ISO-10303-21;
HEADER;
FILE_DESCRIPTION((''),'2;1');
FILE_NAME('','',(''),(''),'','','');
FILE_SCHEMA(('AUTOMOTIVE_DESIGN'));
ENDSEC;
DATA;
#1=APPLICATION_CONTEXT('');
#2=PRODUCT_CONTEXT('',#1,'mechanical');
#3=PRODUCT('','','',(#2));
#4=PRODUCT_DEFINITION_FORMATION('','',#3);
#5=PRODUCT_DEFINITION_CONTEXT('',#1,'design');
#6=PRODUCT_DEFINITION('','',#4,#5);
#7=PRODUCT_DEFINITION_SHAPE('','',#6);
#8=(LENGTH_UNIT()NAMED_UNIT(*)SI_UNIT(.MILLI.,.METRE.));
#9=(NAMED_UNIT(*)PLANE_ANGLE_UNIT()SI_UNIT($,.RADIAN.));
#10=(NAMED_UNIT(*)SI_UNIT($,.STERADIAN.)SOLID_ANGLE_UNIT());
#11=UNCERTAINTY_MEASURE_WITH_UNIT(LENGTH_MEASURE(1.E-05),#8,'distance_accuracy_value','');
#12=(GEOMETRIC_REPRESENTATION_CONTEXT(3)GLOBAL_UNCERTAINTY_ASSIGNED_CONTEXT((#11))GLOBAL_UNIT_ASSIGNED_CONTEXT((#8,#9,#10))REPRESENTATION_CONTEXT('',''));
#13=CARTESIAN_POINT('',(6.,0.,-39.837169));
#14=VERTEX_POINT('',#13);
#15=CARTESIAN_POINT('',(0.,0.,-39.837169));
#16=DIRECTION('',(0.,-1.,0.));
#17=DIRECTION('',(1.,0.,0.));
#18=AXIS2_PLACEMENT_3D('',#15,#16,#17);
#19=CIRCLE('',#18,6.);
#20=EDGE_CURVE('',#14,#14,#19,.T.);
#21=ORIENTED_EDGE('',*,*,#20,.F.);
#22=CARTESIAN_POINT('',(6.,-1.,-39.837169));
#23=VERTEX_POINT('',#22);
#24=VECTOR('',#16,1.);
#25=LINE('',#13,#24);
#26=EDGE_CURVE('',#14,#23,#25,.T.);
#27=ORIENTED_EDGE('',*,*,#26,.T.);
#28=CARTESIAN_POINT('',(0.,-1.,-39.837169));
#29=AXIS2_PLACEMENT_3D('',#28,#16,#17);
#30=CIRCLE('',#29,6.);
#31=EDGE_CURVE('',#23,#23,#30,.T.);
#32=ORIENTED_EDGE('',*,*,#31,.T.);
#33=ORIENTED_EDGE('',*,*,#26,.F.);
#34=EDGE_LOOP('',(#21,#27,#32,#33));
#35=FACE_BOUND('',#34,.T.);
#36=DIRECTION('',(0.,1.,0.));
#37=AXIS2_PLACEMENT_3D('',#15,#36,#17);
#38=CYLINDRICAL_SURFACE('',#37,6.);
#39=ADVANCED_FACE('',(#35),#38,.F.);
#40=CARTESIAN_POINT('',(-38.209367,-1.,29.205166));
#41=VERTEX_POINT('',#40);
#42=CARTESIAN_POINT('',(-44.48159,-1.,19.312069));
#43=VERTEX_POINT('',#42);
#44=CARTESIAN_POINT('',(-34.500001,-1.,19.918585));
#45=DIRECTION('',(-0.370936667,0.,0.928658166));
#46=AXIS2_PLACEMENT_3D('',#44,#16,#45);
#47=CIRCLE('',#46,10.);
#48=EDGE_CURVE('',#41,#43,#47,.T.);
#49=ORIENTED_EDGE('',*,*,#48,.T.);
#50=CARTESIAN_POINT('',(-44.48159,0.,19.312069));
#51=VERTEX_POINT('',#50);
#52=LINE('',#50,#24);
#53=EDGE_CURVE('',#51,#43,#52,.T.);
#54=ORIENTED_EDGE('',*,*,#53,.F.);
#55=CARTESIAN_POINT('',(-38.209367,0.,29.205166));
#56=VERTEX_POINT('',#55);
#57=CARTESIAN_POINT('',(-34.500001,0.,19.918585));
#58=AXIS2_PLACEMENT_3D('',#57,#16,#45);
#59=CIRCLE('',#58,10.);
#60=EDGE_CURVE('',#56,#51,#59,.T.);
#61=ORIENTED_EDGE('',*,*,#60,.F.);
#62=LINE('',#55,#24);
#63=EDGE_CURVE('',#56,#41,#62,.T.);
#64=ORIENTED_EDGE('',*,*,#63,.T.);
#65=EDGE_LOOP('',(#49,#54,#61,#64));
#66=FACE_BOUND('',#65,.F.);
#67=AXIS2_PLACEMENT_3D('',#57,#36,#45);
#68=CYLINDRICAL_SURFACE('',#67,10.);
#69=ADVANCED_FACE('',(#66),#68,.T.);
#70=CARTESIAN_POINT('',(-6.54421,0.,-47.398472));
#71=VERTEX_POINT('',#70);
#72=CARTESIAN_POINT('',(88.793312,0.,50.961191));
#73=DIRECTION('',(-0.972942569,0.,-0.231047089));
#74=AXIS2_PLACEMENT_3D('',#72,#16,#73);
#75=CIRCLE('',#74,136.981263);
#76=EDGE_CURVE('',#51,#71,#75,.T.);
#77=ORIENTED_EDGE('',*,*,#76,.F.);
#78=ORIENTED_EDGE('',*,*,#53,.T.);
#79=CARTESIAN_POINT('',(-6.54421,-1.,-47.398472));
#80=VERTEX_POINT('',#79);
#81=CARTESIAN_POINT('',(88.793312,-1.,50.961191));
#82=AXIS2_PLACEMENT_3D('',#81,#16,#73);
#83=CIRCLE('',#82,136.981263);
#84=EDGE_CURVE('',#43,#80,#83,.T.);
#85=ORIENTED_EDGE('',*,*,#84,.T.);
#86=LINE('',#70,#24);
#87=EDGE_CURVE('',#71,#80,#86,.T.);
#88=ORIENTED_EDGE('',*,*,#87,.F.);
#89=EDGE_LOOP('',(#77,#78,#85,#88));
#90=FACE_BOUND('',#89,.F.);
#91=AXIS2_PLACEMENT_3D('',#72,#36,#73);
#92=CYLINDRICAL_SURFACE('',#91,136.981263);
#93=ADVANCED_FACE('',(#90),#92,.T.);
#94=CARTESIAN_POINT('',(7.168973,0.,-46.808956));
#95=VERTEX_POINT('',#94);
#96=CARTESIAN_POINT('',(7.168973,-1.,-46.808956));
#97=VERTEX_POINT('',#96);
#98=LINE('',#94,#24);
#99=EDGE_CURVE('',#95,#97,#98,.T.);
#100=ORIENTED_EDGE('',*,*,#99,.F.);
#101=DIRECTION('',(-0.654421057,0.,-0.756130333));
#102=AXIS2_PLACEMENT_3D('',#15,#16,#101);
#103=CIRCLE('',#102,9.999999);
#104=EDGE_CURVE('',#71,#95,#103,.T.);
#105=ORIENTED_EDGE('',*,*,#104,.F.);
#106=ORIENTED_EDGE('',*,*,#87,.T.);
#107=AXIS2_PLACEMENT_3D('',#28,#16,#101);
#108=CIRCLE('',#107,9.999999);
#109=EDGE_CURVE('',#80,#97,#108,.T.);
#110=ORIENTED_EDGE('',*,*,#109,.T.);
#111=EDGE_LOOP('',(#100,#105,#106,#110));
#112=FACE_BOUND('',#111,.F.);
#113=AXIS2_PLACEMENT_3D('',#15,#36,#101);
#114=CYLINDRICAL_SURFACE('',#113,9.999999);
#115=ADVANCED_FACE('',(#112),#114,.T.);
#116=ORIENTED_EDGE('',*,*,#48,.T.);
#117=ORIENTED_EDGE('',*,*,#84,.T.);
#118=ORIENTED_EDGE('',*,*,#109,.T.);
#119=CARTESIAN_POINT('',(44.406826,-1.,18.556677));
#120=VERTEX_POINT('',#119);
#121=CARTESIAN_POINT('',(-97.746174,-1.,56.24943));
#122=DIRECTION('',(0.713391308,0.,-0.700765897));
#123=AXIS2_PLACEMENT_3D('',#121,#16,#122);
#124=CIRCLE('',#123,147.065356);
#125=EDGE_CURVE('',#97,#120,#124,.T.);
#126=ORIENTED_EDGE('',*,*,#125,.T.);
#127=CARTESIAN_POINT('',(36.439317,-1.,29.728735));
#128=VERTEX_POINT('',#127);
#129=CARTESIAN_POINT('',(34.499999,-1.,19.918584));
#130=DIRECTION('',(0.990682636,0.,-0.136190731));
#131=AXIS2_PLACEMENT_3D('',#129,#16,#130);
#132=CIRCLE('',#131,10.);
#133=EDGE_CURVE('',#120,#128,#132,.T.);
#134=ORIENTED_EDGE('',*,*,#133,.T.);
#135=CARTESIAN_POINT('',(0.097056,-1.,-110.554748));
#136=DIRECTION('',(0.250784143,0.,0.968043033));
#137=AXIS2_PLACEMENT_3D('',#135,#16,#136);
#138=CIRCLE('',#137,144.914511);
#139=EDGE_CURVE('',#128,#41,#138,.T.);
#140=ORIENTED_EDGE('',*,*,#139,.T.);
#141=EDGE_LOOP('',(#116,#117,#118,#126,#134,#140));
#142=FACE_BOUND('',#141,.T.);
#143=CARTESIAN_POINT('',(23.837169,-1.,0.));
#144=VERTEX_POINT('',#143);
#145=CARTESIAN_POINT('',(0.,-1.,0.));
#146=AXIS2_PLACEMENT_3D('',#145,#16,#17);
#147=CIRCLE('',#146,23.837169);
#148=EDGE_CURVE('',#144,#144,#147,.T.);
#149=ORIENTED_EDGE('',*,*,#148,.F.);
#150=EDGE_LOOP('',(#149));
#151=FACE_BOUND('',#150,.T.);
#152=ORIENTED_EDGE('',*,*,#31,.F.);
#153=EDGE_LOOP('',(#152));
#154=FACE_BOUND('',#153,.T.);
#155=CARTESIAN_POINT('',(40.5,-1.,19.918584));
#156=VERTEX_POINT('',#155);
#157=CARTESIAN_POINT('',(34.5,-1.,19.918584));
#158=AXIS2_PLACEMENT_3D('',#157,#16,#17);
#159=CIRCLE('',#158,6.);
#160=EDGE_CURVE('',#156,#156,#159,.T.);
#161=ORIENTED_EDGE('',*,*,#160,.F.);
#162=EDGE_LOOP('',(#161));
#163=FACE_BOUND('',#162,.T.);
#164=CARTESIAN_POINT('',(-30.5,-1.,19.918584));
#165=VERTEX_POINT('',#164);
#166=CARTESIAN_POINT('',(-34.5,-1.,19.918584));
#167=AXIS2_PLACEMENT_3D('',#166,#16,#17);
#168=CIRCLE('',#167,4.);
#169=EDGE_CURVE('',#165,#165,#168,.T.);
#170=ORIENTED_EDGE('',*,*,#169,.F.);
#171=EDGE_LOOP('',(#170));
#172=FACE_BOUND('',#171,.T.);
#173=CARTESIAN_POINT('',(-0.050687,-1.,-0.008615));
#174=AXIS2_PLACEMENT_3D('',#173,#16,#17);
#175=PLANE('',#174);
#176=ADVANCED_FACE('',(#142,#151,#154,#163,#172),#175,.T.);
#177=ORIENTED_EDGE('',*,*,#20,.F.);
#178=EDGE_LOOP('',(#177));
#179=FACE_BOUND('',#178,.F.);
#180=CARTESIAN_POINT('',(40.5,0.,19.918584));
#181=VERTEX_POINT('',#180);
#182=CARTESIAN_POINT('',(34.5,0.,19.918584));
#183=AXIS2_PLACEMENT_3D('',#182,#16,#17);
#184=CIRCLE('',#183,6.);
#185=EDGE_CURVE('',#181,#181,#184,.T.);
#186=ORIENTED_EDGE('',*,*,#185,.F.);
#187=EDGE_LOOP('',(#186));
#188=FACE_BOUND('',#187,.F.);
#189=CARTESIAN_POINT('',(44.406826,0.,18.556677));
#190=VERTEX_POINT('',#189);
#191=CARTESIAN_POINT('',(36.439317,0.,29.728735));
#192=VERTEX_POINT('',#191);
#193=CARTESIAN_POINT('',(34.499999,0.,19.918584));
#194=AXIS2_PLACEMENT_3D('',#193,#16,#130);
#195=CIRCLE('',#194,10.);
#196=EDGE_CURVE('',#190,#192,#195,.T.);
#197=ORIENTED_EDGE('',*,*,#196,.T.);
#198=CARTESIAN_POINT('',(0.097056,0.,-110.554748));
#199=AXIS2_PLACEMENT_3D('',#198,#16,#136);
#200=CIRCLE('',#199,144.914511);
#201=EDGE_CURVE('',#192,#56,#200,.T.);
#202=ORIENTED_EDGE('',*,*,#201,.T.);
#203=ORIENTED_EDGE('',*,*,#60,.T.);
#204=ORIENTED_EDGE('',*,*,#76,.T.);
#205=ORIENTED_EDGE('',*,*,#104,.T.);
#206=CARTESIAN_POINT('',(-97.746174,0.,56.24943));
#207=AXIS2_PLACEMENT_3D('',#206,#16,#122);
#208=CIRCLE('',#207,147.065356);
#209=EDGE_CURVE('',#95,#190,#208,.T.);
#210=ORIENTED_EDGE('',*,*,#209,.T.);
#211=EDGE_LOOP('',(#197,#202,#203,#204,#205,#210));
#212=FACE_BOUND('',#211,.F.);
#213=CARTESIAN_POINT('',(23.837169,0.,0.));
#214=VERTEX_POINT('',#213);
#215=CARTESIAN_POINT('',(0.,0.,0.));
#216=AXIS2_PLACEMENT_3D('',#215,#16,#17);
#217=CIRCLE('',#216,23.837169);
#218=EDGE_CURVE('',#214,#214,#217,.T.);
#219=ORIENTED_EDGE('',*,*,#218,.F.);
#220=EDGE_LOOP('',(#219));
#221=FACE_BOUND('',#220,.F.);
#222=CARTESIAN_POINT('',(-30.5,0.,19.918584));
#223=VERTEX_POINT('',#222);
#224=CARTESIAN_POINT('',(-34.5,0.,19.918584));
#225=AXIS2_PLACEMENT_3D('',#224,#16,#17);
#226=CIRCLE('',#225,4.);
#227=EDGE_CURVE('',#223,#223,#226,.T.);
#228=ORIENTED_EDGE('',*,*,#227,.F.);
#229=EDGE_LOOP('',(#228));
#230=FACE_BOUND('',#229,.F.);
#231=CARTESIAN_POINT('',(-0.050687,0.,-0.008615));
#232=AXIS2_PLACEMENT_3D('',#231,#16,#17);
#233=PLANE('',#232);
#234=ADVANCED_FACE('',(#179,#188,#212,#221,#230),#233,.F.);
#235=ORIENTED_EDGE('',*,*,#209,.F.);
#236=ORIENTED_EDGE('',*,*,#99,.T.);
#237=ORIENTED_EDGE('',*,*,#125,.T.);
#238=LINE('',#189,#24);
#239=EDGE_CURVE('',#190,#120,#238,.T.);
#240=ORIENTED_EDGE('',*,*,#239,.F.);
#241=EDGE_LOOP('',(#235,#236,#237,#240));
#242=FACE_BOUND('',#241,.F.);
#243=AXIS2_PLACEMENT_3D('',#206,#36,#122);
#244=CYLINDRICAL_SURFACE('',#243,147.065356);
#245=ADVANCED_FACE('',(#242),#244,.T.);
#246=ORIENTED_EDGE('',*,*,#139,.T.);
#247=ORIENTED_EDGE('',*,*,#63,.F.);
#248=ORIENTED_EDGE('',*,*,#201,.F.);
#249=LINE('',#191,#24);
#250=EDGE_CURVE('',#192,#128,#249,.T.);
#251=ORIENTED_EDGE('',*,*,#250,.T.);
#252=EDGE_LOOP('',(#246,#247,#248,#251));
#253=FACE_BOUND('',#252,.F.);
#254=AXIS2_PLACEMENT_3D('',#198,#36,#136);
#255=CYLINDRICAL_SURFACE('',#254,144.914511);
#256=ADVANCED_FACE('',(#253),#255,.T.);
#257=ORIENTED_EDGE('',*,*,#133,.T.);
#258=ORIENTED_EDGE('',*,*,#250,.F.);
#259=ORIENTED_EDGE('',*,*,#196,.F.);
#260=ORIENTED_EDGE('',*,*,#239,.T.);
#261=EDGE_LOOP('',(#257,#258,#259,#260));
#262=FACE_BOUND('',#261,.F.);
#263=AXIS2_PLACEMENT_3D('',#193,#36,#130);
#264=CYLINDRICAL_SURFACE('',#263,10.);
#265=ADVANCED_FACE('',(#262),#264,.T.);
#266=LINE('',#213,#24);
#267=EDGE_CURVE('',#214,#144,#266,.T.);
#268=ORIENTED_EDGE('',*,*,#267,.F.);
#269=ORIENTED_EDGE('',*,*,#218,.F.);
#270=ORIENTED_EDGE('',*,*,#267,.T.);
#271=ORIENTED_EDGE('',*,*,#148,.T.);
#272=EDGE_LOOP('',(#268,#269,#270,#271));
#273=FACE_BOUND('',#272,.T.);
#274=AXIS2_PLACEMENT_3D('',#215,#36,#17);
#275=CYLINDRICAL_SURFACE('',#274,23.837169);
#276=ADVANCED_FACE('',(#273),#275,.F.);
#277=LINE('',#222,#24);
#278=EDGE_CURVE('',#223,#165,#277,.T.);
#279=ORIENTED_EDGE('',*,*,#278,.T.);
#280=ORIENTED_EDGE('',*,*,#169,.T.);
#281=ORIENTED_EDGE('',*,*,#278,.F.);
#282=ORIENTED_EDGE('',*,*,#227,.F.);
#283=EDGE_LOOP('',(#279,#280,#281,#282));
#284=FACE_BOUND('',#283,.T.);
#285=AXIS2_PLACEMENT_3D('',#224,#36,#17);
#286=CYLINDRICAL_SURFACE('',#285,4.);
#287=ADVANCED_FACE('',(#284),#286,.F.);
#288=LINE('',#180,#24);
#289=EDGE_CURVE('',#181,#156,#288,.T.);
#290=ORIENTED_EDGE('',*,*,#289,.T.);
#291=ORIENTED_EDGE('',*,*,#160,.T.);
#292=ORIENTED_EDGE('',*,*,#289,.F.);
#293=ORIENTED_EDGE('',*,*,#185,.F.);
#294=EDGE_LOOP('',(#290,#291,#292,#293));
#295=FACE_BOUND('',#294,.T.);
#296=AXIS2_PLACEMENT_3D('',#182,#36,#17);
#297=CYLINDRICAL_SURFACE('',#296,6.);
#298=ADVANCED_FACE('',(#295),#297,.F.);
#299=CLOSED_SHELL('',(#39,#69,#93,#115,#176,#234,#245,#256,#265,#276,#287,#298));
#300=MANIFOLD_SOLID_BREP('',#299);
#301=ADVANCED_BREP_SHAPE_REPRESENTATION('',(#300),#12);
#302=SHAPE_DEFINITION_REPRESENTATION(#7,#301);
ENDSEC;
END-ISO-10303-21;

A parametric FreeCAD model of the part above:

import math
import FreeCAD as App
import Part
import Sketcher
Q = App.Units.Quantity

doc = App.newDocument("Part")
body = doc.addObject("PartDesign::Body", "Body")

sketch1 = body.newObject("Sketcher::SketchObject", "Sketch")
sketch1.AttachmentSupport = (doc.getObject("XZ_Plane"), [""])
sketch1.MapMode = "FlatFace"
sketch1.addGeometry([
    Part.ArcOfCircle(Part.Circle(App.Vector(0.097056, -110.554748, 0), App.Vector(0, 0, 1), 144.914511), math.radians(75.476081), math.radians(105.327625)),
    Part.ArcOfCircle(Part.Circle(App.Vector(-34.500001, 19.918585, 0), App.Vector(0, 0, 1), 9.999999), math.radians(111.773396), math.radians(183.477214)),
    Part.ArcOfCircle(Part.Circle(App.Vector(88.793312, 50.961191, 0), App.Vector(0, 0, 1), 136.981263), math.radians(-166.641274), math.radians(-134.106121)),
    Part.ArcOfCircle(Part.Circle(App.Vector(0, -39.837169, 0), App.Vector(0, 0, 1), 9.999999), math.radians(-130.875766), math.radians(-44.201089)),
    Part.ArcOfCircle(Part.Circle(App.Vector(-97.746174, 56.24943, 0), App.Vector(0, 0, 1), 147.065356), math.radians(-44.488484), math.radians(-14.850591)),
    Part.ArcOfCircle(Part.Circle(App.Vector(34.499999, 19.918584, 0), App.Vector(0, 0, 1), 10), math.radians(-7.82748), math.radians(78.817673)),
    Part.Circle(App.Vector(0, -39.837169, 0), App.Vector(0, 0, 1), 6),
    Part.Circle(App.Vector(0, 0, 0), App.Vector(0, 0, 1), 23.837169),
    Part.Circle(App.Vector(-34.5, 19.918584, 0), App.Vector(0, 0, 1), 4),
    Part.Circle(App.Vector(34.5, 19.918584, 0), App.Vector(0, 0, 1), 6),
], False)
sketch1.addConstraint([
    Sketcher.Constraint("Coincident", 0, 2, 1, 1),
    Sketcher.Constraint("Coincident", 1, 2, 2, 1),
    Sketcher.Constraint("Coincident", 2, 2, 3, 1),
    Sketcher.Constraint("Coincident", 3, 2, 4, 1),
    Sketcher.Constraint("Coincident", 4, 2, 5, 1),
    Sketcher.Constraint("Coincident", 5, 2, 0, 1),
    Sketcher.Constraint("Coincident", 7, 3, -1, 1),
    Sketcher.Constraint("Coincident", 6, 3, 3, 3),
    Sketcher.Constraint("Coincident", 8, 3, 1, 3),
    Sketcher.Constraint("Coincident", 9, 3, 5, 3),
    Sketcher.Constraint("PointOnObject", 3, 3, -2),
    Sketcher.Constraint("Diameter", 6, Q("12 mm")),
    Sketcher.Constraint("Diameter", 8, Q("8 mm")),
    Sketcher.Constraint("Diameter", 9, Q("12 mm")),
    Sketcher.Constraint("Radius", 1, Q("9.999999 mm")),
    Sketcher.Constraint("Radius", 3, Q("9.999999 mm")),
    Sketcher.Constraint("Radius", 5, Q("10 mm")),
    Sketcher.Constraint("DistanceX", 1, 3, 5, 3, Q("69 mm")),
    Sketcher.Constraint("DistanceX", 1, 3, -1, 1, Q("34.500001 mm")),
    Sketcher.Constraint("Radius", 0, Q("144.914511 mm")),
    Sketcher.Constraint("Diameter", 7, Q("47.674338 mm")),
    Sketcher.Constraint("Radius", 2, Q("136.981263 mm")),
    Sketcher.Constraint("Radius", 4, Q("147.065356 mm")),
    Sketcher.Constraint("DistanceY", 3, 3, 4, 3, Q("96.0866 mm")),
    Sketcher.Constraint("DistanceX", -1, 1, 2, 3, Q("88.793312 mm")),
    Sketcher.Constraint("DistanceY", -1, 1, 2, 3, Q("50.961191 mm")),
    Sketcher.Constraint("DistanceY", 3, 3, -1, 1, Q("39.837169 mm")),
    Sketcher.Constraint("DistanceX", 1, 2, -1, 1, Q("44.48159 mm")),
    Sketcher.Constraint("DistanceY", 0, 3, 2, 3, Q("161.515939 mm")),
    Sketcher.Constraint("DistanceX", 4, 3, 0, 3, Q("97.843229 mm")),
    Sketcher.Constraint("DistanceY", 0, 3, 5, 3, Q("130.473332 mm")),
    Sketcher.Constraint("DistanceY", 0, 3, 3, 2, Q("63.745792 mm")),
])
pad1 = body.newObject("PartDesign::Pad", "Pad")
pad1.Profile = sketch1
pad1.Length = 1

doc.recompute()
